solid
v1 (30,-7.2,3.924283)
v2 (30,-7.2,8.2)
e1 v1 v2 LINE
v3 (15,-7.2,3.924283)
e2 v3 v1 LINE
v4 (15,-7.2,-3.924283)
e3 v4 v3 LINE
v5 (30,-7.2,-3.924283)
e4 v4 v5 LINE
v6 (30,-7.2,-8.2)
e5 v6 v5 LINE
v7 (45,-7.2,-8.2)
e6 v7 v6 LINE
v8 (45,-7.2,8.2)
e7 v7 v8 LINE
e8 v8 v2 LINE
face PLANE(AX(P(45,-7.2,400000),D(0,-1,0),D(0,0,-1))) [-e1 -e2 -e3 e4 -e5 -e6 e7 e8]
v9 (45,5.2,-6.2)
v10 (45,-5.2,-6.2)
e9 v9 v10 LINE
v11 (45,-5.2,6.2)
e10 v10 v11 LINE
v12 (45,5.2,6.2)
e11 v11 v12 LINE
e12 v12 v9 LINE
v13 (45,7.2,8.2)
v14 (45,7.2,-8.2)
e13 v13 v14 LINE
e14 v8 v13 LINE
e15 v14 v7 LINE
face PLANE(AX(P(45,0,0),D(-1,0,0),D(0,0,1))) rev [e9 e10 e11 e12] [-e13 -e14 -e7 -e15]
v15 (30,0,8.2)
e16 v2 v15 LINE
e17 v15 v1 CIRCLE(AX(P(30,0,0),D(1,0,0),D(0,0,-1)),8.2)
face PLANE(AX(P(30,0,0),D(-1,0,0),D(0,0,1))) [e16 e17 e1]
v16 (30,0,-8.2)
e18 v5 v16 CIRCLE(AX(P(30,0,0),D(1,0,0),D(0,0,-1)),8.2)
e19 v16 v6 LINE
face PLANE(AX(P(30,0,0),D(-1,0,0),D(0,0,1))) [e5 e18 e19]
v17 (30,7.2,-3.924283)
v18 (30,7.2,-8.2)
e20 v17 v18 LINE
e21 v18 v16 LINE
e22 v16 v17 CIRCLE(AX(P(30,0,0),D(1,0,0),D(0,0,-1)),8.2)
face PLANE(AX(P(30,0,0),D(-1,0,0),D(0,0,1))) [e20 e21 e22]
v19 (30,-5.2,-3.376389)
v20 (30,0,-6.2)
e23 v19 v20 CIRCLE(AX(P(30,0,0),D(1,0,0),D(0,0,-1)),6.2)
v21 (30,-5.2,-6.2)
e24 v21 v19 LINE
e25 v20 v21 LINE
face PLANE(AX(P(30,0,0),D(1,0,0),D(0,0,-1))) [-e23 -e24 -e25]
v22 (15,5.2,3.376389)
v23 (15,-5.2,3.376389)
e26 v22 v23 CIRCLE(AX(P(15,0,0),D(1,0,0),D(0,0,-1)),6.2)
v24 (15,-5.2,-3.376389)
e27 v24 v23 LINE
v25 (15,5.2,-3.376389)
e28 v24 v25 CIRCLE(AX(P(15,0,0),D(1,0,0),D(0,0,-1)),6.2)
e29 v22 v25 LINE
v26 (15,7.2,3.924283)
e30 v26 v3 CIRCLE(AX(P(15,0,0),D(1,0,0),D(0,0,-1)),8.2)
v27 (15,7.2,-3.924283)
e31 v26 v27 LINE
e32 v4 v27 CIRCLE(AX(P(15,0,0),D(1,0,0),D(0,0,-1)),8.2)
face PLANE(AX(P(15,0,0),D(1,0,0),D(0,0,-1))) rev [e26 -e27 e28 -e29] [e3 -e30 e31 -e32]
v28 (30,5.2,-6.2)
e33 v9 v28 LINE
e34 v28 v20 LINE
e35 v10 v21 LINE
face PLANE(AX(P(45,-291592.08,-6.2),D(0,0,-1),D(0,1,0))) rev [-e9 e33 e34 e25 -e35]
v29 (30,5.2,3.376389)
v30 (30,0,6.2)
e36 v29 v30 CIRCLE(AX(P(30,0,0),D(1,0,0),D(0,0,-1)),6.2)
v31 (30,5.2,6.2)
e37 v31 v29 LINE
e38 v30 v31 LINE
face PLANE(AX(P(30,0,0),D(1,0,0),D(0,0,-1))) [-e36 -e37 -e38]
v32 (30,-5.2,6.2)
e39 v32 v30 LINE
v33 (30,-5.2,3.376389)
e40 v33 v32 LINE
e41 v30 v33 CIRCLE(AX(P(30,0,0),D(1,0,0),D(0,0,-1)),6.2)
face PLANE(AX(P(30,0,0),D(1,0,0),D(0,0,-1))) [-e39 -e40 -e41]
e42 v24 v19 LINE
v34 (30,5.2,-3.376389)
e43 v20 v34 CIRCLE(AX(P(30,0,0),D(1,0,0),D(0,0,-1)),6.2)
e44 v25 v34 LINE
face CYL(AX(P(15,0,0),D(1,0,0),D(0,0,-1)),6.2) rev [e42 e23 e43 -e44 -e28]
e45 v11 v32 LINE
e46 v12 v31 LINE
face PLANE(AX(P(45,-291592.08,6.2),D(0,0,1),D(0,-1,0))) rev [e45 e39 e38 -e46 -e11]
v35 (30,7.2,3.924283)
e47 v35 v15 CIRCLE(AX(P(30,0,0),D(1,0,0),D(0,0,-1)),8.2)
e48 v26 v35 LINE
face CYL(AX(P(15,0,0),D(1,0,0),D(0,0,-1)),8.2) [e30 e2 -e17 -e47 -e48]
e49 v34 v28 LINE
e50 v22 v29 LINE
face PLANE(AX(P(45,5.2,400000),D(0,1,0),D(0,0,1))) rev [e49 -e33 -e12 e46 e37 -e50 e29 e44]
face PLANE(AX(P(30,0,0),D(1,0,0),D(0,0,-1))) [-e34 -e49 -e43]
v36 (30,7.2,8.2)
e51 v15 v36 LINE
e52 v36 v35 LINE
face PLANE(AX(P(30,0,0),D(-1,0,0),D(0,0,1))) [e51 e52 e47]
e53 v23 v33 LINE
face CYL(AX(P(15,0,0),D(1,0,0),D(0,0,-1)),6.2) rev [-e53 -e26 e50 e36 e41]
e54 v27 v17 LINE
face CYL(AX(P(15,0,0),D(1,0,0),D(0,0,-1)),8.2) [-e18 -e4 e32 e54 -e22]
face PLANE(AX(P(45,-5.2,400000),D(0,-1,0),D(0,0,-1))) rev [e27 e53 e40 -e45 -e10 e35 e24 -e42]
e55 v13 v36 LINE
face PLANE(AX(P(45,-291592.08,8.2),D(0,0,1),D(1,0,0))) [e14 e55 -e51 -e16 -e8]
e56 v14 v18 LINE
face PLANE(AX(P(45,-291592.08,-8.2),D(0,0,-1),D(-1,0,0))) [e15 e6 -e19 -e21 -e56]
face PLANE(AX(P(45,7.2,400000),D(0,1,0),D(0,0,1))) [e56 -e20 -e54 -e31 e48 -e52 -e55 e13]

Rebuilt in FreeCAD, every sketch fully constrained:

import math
import FreeCAD as App
import Part
import Sketcher
Q = App.Units.Quantity

doc = App.newDocument("Part")
body = doc.addObject("PartDesign::Body", "Body")

# Sketch on YZ plane
sketch1 = doc.addObject("Sketcher::SketchObject", "Sketch")
body.addObject(sketch1)
sketch1.AttachmentSupport = (doc.YZ_Plane, [""])
sketch1.MapMode = "FlatFace"
sketch1.AttachmentOffset = App.Placement(App.Vector(0, 0, 30), App.Rotation())
sketch1.addGeometry([
    Part.LineSegment(App.Vector(7, 8, 0), App.Vector(-7, 8, 0)),  # 0
    Part.LineSegment(App.Vector(-7, 8, 0), App.Vector(-7, -8, 0)),  # 1
    Part.LineSegment(App.Vector(-7, -8, 0), App.Vector(7, -8, 0)),  # 2
    Part.LineSegment(App.Vector(7, -8, 0), App.Vector(7, 8, 0)),  # 3
    Part.LineSegment(App.Vector(-5, -6, 0), App.Vector(-5, 6, 0)),  # 4
    Part.LineSegment(App.Vector(-5, 6, 0), App.Vector(5, 6, 0)),  # 5
    Part.LineSegment(App.Vector(5, 6, 0), App.Vector(5, -6, 0)),  # 6
    Part.LineSegment(App.Vector(5, -6, 0), App.Vector(-5, -6, 0)),  # 7
], False)
sketch1.addConstraint([
    Sketcher.Constraint("Coincident", 0, 2, 1, 1),
    Sketcher.Constraint("Coincident", 1, 2, 2, 1),
    Sketcher.Constraint("Coincident", 2, 2, 3, 1),
    Sketcher.Constraint("Coincident", 3, 2, 0, 1),
    Sketcher.Constraint("Coincident", 4, 2, 5, 1),
    Sketcher.Constraint("Coincident", 5, 2, 6, 1),
    Sketcher.Constraint("Coincident", 6, 2, 7, 1),
    Sketcher.Constraint("Coincident", 7, 2, 4, 1),
    Sketcher.Constraint("Horizontal", 0),
    Sketcher.Constraint("Vertical", 1),
    Sketcher.Constraint("Horizontal", 2),
    Sketcher.Constraint("Vertical", 3),
    Sketcher.Constraint("Vertical", 4),
    Sketcher.Constraint("Horizontal", 5),
    Sketcher.Constraint("Vertical", 6),
    Sketcher.Constraint("Horizontal", 7),
    Sketcher.Constraint("Symmetric", 0, 2, 2, 2, -1, 1),
    Sketcher.Constraint("Symmetric", 4, 2, 6, 2, -1, 1),
    Sketcher.Constraint("DistanceX", 0, 2, 0, 1, Q("14.4 mm")),
    Sketcher.Constraint("DistanceX", 5, 1, 5, 2, Q("10.4 mm")),
    Sketcher.Constraint("DistanceY", 1, 2, 1, 1, Q("16.4 mm")),
    Sketcher.Constraint("DistanceY", 4, 1, 4, 2, Q("12.4 mm")),
])
pad1 = doc.addObject("PartDesign::Pad", "Pad")
body.addObject(pad1)
pad1.Profile = sketch1
pad1.Length = 15

# Sketch on YZ plane
sketch2 = doc.addObject("Sketcher::SketchObject", "Sketch001")
body.addObject(sketch2)
sketch2.AttachmentSupport = (doc.YZ_Plane, [""])
sketch2.MapMode = "FlatFace"
sketch2.AttachmentOffset = App.Placement(App.Vector(0, 0, 30), App.Rotation())
sketch2.addGeometry([
    Part.LineSegment(App.Vector(7, -4, 0), App.Vector(7, 4, 0)),  # 0
    Part.ArcOfCircle(Part.Circle(App.Vector(0, 0, 0), App.Vector(0, 0, 1), 8), math.radians(29), math.radians(151)),  # 1
    Part.LineSegment(App.Vector(-7, 4, 0), App.Vector(-7, -4, 0)),  # 2
    Part.ArcOfCircle(Part.Circle(App.Vector(0, 0, 0), App.Vector(0, 0, 1), 8), math.radians(-151), math.radians(-29)),  # 3
    Part.LineSegment(App.Vector(5, 3, 0), App.Vector(5, -3, 0)),  # 4
    Part.ArcOfCircle(Part.Circle(App.Vector(0, 0, 0), App.Vector(0, 0, 1), 6), math.radians(-147), math.radians(-33)),  # 5
    Part.LineSegment(App.Vector(-5, -3, 0), App.Vector(-5, 3, 0)),  # 6
    Part.ArcOfCircle(Part.Circle(App.Vector(0, 0, 0), App.Vector(0, 0, 1), 6), math.radians(33), math.radians(147)),  # 7
], False)
sketch2.addConstraint([
    Sketcher.Constraint("Coincident", 0, 2, 1, 1),
    Sketcher.Constraint("Coincident", 1, 2, 2, 1),
    Sketcher.Constraint("Coincident", 2, 2, 3, 1),
    Sketcher.Constraint("Coincident", 3, 2, 0, 1),
    Sketcher.Constraint("Coincident", 4, 2, 5, 2),
    Sketcher.Constraint("Coincident", 5, 1, 6, 1),
    Sketcher.Constraint("Coincident", 6, 2, 7, 2),
    Sketcher.Constraint("Coincident", 7, 1, 4, 1),
    Sketcher.Constraint("Vertical", 0),
    Sketcher.Constraint("Vertical", 2),
    Sketcher.Constraint("Vertical", 4),
    Sketcher.Constraint("Vertical", 6),
    Sketcher.Constraint("Coincident", 1, 3, -1, 1),
    Sketcher.Constraint("Coincident", 3, 3, -1, 1),
    Sketcher.Constraint("Coincident", 5, 3, -1, 1),
    Sketcher.Constraint("Coincident", 7, 3, -1, 1),
    Sketcher.Constraint("Equal", 1, 3),
    Sketcher.Constraint("Equal", 5, 7),
    Sketcher.Constraint("Horizontal", 0, 2, 1, 2),
    Sketcher.Constraint("Horizontal", 4, 2, 5, 1),
    Sketcher.Constraint("Radius", 1, Q("8.2 mm")),
    Sketcher.Constraint("Radius", 5, Q("6.2 mm")),
    Sketcher.Constraint("DistanceX", 4, 2, 3, 2, Q("2 mm")),
    Sketcher.Constraint("DistanceX", -1, 1, 0, 2, Q("7.2 mm")),
])
pad2 = doc.addObject("PartDesign::Pad", "Pad001")
body.addObject(pad2)
pad2.Profile = sketch2
pad2.Length = 15
pad2.Reversed = True

doc.recompute()
